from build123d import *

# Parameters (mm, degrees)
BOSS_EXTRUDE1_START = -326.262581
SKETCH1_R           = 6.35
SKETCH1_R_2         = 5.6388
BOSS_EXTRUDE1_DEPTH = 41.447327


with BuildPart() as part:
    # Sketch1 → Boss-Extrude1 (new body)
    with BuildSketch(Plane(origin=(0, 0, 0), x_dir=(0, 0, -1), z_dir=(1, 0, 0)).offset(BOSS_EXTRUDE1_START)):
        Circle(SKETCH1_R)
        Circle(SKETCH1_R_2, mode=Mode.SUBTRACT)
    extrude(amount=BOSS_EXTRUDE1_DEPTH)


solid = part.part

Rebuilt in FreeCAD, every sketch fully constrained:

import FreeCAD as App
import Part
import Sketcher
from FreeCAD import Vector
Q = App.Units.Quantity

doc = App.newDocument("Part")
params = doc.addObject("Spreadsheet::Sheet", "Params")
for row, (alias, value) in enumerate([
    ("sketch1_diameter", "0.5 in"),
    ("sketch1_diameter2", "0.444 in"),
    ("pad1_length", "41.447327 mm"),
], start=1):
    params.set(f"A{row}", alias)
    params.set(f"B{row}", "=" + value)
    params.setAlias(f"B{row}", alias)

body = doc.addObject("PartDesign::Body", "Body")

sketch1 = doc.addObject("Sketcher::SketchObject", "Sketch")
body.addObject(sketch1)
sketch1.AttachmentSupport = (doc.YZ_Plane, [""])
sketch1.MapMode = "FlatFace"
sketch1.AttachmentOffset = App.Placement(Vector(0, 0, -326.262581), App.Rotation())
sketch1.addGeometry(Part.Circle(Vector(0, 0, 0), Vector(0, 0, 1), 6), False)
sketch1.addGeometry(Part.Circle(Vector(0, 0, 0), Vector(0, 0, 1), 6), False)
sketch1.addConstraint(Sketcher.Constraint("Coincident", 0, 3, -1, 1))
sketch1.addConstraint(Sketcher.Constraint("Coincident", 1, 3, -1, 1))
sketch1.addConstraint(Sketcher.Constraint("Diameter", 0, Q("0.5 in")))
sketch1.addConstraint(Sketcher.Constraint("Diameter", 1, Q("0.444 in")))
sketch1.setExpression("Constraints[2]", "Params.sketch1_diameter")
sketch1.setExpression("Constraints[3]", "Params.sketch1_diameter2")
pad1 = doc.addObject("PartDesign::Pad", "Pad")
body.addObject(pad1)
pad1.Profile = sketch1
pad1.setExpression("Length", "Params.pad1_length")

doc.recompute()
